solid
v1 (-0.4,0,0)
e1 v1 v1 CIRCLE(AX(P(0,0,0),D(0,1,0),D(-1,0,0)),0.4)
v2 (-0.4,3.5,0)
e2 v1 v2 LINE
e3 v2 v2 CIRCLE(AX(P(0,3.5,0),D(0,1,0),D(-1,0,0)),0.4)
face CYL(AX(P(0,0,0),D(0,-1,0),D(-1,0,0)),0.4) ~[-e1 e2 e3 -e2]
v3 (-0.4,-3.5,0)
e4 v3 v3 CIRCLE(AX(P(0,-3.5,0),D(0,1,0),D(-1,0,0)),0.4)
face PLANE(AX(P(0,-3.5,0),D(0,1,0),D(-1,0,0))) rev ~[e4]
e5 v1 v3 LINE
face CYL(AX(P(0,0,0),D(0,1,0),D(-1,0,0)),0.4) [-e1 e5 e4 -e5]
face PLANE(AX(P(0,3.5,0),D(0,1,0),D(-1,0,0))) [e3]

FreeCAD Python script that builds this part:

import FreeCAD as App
import Part
import Sketcher

V = App.Vector

doc = App.newDocument("Part")
params = doc.addObject("Spreadsheet::Sheet", "Params")
for row, (alias, value) in enumerate([
    ("sketch1_diameter", "0.8 mm"),
    ("pad1_length", "7 mm"),
], start=1):
    params.set(f"A{row}", alias)
    params.set(f"B{row}", "=" + value)
    params.setAlias(f"B{row}", alias)

body = doc.addObject("PartDesign::Body", "Body")

# Sketch on XZ plane
sketch1 = doc.addObject("Sketcher::SketchObject", "Sketch")
body.addObject(sketch1)
sketch1.AttachmentSupport = (doc.XZ_Plane, [""])
sketch1.MapMode = "FlatFace"
sketch1.addGeometry(Part.Circle(V(0, 0, 0), V(0, 0, 1), 0.4), False)
sketch1.addConstraint(Sketcher.Constraint("Coincident", 0, 3, -1, 1))
sketch1.addConstraint(Sketcher.Constraint("Diameter", 0, 0.8))
sketch1.setExpression("Constraints[1]", "Params.sketch1_diameter")
pad1 = doc.addObject("PartDesign::Pad", "Pad")
body.addObject(pad1)
pad1.Profile = sketch1
pad1.setExpression("Length", "Params.pad1_length")
pad1.Midplane = True

doc.recompute()
